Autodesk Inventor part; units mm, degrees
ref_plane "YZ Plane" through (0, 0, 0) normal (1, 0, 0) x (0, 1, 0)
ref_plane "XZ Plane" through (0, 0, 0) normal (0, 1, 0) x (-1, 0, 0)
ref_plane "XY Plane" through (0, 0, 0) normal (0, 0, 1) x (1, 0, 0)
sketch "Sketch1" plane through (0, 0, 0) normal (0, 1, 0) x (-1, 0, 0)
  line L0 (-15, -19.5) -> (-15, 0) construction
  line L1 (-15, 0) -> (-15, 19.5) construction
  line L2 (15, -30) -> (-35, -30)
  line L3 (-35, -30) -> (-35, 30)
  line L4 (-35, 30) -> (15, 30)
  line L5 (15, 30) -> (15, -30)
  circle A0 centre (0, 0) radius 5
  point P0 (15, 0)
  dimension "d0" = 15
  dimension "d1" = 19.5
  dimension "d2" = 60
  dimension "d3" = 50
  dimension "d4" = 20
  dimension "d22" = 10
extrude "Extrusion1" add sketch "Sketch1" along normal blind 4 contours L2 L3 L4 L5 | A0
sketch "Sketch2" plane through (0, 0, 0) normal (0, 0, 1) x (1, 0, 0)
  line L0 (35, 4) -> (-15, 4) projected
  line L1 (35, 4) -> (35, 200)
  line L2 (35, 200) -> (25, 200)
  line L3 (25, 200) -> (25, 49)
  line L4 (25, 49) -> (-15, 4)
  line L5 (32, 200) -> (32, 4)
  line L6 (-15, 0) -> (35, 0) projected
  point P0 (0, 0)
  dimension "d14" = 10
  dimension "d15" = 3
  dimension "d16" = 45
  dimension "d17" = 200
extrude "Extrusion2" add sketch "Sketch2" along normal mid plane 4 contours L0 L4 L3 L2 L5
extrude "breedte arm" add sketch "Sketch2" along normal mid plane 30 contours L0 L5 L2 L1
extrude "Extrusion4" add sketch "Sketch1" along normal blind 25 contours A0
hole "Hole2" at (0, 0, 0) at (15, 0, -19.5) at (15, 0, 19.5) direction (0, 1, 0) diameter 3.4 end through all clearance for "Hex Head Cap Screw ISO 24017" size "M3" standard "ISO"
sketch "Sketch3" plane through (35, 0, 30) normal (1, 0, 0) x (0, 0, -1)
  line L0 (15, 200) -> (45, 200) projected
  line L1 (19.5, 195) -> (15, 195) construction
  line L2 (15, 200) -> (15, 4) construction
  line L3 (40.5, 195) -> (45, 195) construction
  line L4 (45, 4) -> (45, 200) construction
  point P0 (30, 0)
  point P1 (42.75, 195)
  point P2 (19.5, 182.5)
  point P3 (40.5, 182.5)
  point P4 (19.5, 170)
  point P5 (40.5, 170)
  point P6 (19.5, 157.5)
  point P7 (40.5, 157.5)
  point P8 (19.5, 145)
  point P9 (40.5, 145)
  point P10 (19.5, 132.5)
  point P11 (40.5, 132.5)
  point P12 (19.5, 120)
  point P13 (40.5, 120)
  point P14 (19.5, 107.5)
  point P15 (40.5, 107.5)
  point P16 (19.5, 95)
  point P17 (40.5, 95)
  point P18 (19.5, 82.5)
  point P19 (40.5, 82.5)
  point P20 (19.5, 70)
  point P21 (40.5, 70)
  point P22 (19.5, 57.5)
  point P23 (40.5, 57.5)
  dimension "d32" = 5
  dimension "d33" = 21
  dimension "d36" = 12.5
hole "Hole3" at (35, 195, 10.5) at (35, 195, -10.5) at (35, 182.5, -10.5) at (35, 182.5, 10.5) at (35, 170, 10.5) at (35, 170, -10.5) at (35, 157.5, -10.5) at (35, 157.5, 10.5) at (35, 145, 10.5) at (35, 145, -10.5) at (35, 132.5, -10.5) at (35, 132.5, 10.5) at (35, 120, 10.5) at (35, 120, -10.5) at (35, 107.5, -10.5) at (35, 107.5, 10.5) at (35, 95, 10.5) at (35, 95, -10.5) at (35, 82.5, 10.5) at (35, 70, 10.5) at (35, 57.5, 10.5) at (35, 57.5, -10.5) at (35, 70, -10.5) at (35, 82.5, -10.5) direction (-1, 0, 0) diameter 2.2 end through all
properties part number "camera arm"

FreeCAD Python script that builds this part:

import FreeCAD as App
import Part
import Sketcher
from FreeCAD import Vector
Q = App.Units.Quantity


def add_polygon(sketch, points):
    """Adds a closed chain of lines whose ends are joined by coincident constraints."""
    first, n = sketch.GeometryCount, len(points)
    for a, b in zip(points, points[1:] + points[:1]):
        sketch.addGeometry(Part.LineSegment(App.Vector(*a, 0), App.Vector(*b, 0)), False)
    for i in range(n):
        sketch.addConstraint(Sketcher.Constraint("Coincident", first + i, 2, first + (i + 1) % n, 1))

doc = App.newDocument("Part")
body = doc.addObject("PartDesign::Body", "Body")

# Sketch on XZ plane
sketch1 = doc.addObject("Sketcher::SketchObject", "Sketch")
body.addObject(sketch1)
sketch1.AttachmentSupport = (doc.XZ_Plane, [""])
sketch1.MapMode = "FlatFace"
add_polygon(sketch1, [(35, -30), (-15, -30), (-15, 30), (35, 30)])  # lines 0-3
sketch1.addConstraint([
    Sketcher.Constraint("Horizontal", 0),
    Sketcher.Constraint("Vertical", 1),
    Sketcher.Constraint("Horizontal", 2),
    Sketcher.Constraint("Vertical", 3),
    Sketcher.Constraint("DistanceX", 0, 2, 0, 1, Q("50 mm")),
    Sketcher.Constraint("DistanceY", 1, 1, 1, 2, Q("60 mm")),
    Sketcher.Constraint("DistanceX", 0, 2, -1, 1, Q("15 mm")),
    Sketcher.Constraint("DistanceY", 0, 2, -1, 1, Q("30 mm")),
])
pad1 = doc.addObject("PartDesign::Pad", "Pad")
body.addObject(pad1)
pad1.Profile = sketch1
pad1.Length = 4
pad1.Reversed = True

# Sketch on XY plane
sketch2 = doc.addObject("Sketcher::SketchObject", "Sketch001")
body.addObject(sketch2)
sketch2.AttachmentSupport = (doc.XY_Plane, [""])
sketch2.MapMode = "FlatFace"
add_polygon(sketch2, [(-15, 4), (32, 4), (32, 200), (25, 200), (25, 49)])  # lines 0-4
sketch2.addConstraint([
    Sketcher.Constraint("Horizontal", 0),
    Sketcher.Constraint("Vertical", 1),
    Sketcher.Constraint("Horizontal", 2),
    Sketcher.Constraint("Vertical", 3),
    Sketcher.Constraint("DistanceY", -1, 1, 1, 2, Q("200 mm")),
    Sketcher.Constraint("DistanceY", 0, 2, 3, 2, Q("45 mm")),
    Sketcher.Constraint("DistanceX", 0, 1, 0, 2, Q("47 mm")),
    Sketcher.Constraint("DistanceX", 2, 2, 2, 1, Q("7 mm")),
    Sketcher.Constraint("DistanceY", 1, 1, 1, 2, Q("196 mm")),
    Sketcher.Constraint("DistanceX", -1, 1, 0, 2, Q("32 mm")),
])
pad2 = doc.addObject("PartDesign::Pad", "Pad001")
body.addObject(pad2)
pad2.Profile = sketch2
pad2.Length = 4
pad2.Midplane = True

# Sketch on XY plane
sketch3 = doc.addObject("Sketcher::SketchObject", "Sketch002")
body.addObject(sketch3)
sketch3.AttachmentSupport = (doc.XY_Plane, [""])
sketch3.MapMode = "FlatFace"
add_polygon(sketch3, [(32, 4), (35, 4), (35, 200), (32, 200)])  # lines 0-3
sketch3.addConstraint([
    Sketcher.Constraint("Horizontal", 0),
    Sketcher.Constraint("Vertical", 1),
    Sketcher.Constraint("Horizontal", 2),
    Sketcher.Constraint("Vertical", 3),
    Sketcher.Constraint("DistanceX", 0, 1, 0, 2, Q("3 mm")),
    Sketcher.Constraint("DistanceY", -1, 1, 1, 2, Q("200 mm")),
    Sketcher.Constraint("DistanceY", 1, 1, 1, 2, Q("196 mm")),
    Sketcher.Constraint("DistanceX", -1, 1, 0, 2, Q("35 mm")),
])
pad3 = doc.addObject("PartDesign::Pad", "Pad002")
body.addObject(pad3)
pad3.Profile = sketch3
pad3.Length = 30
pad3.Midplane = True

# Sketch on XZ plane
sketch4 = doc.addObject("Sketcher::SketchObject", "Sketch003")
body.addObject(sketch4)
sketch4.AttachmentSupport = (doc.XZ_Plane, [""])
sketch4.MapMode = "FlatFace"
sketch4.addGeometry(Part.Circle(Vector(0, 0, 0), Vector(0, 0, 1), 5), False)
sketch4.addConstraint([
    Sketcher.Constraint("Coincident", 0, 3, -1, 1),
    Sketcher.Constraint("Diameter", 0, Q("10 mm")),
])
pad4 = doc.addObject("PartDesign::Pad", "Pad003")
body.addObject(pad4)
pad4.Profile = sketch4
pad4.Length = 25
pad4.Reversed = True

# Sketch on XZ plane
sketch5 = doc.addObject("Sketcher::SketchObject", "Sketch004")
body.addObject(sketch5)
sketch5.AttachmentSupport = (doc.XZ_Plane, [""])
sketch5.MapMode = "FlatFace"
sketch5.addGeometry([
    Part.Circle(Vector(0, 0, 0), Vector(0, 0, 1), 1.7),
    Part.Circle(Vector(15, -19.5, 0), Vector(0, 0, 1), 1.7),
    Part.Circle(Vector(15, 19.5, 0), Vector(0, 0, 1), 1.7),
], False)
sketch5.addConstraint([
    Sketcher.Constraint("Coincident", 0, 3, -1, 1),
    Sketcher.Constraint("Equal", 0, 1),
    Sketcher.Constraint("Equal", 1, 2),
    Sketcher.Constraint("Symmetric", 1, 3, 2, 3, -1),
    Sketcher.Constraint("Diameter", 0, Q("3.4 mm")),
    Sketcher.Constraint("DistanceX", -1, 1, 1, 3, Q("15 mm")),
    Sketcher.Constraint("DistanceY", 1, 3, 2, 3, Q("39 mm")),
])
doc.recompute()
hole = doc.addObject("PartDesign::Hole", "Hole")
body.addObject(hole)
hole.Profile = sketch5
hole.ThreadType = "None"
hole.Diameter = 3.4
hole.DepthType = "ThroughAll"

# Sketch on YZ plane
sketch6 = doc.addObject("Sketcher::SketchObject", "Sketch005")
body.addObject(sketch6)
sketch6.AttachmentSupport = (doc.YZ_Plane, [""])
sketch6.MapMode = "FlatFace"
sketch6.AttachmentOffset = App.Placement(Vector(0, 0, 35), App.Rotation())
sketch6.addGeometry([
    Part.Circle(Vector(195, 10.5, 0), Vector(0, 0, 1), 1.1),  # 0
    Part.Circle(Vector(195, -10.5, 0), Vector(0, 0, 1), 1.1),  # 1
    Part.Circle(Vector(182.5, -10.5, 0), Vector(0, 0, 1), 1.1),  # 2
    Part.Circle(Vector(182.5, 10.5, 0), Vector(0, 0, 1), 1.1),  # 3
    Part.Circle(Vector(170, 10.5, 0), Vector(0, 0, 1), 1.1),  # 4
    Part.Circle(Vector(170, -10.5, 0), Vector(0, 0, 1), 1.1),  # 5
    Part.Circle(Vector(157.5, -10.5, 0), Vector(0, 0, 1), 1.1),  # 6
    Part.Circle(Vector(157.5, 10.5, 0), Vector(0, 0, 1), 1.1),  # 7
    Part.Circle(Vector(145, 10.5, 0), Vector(0, 0, 1), 1.1),  # 8
    Part.Circle(Vector(145, -10.5, 0), Vector(0, 0, 1), 1.1),  # 9
    Part.Circle(Vector(132.5, -10.5, 0), Vector(0, 0, 1), 1.1),  # 10
    Part.Circle(Vector(132.5, 10.5, 0), Vector(0, 0, 1), 1.1),  # 11
    Part.Circle(Vector(120, 10.5, 0), Vector(0, 0, 1), 1.1),  # 12
    Part.Circle(Vector(120, -10.5, 0), Vector(0, 0, 1), 1.1),  # 13
    Part.Circle(Vector(107.5, -10.5, 0), Vector(0, 0, 1), 1.1),  # 14
    Part.Circle(Vector(107.5, 10.5, 0), Vector(0, 0, 1), 1.1),  # 15
    Part.Circle(Vector(95, 10.5, 0), Vector(0, 0, 1), 1.1),  # 16
    Part.Circle(Vector(95, -10.5, 0), Vector(0, 0, 1), 1.1),  # 17
    Part.Circle(Vector(82.5, 10.5, 0), Vector(0, 0, 1), 1.1),  # 18
    Part.Circle(Vector(70, 10.5, 0), Vector(0, 0, 1), 1.1),  # 19
    Part.Circle(Vector(57.5, 10.5, 0), Vector(0, 0, 1), 1.1),  # 20
    Part.Circle(Vector(57.5, -10.5, 0), Vector(0, 0, 1), 1.1),  # 21
    Part.Circle(Vector(70, -10.5, 0), Vector(0, 0, 1), 1.1),  # 22
    Part.Circle(Vector(82.5, -10.5, 0), Vector(0, 0, 1), 1.1),  # 23
], False)
sketch6.addConstraint([
    Sketcher.Constraint("Equal", 0, 1),
    Sketcher.Constraint("Equal", 1, 2),
    Sketcher.Constraint("Equal", 2, 3),
    Sketcher.Constraint("Equal", 3, 4),
    Sketcher.Constraint("Equal", 4, 5),
    Sketcher.Constraint("Equal", 5, 6),
    Sketcher.Constraint("Equal", 6, 7),
    Sketcher.Constraint("Equal", 7, 8),
    Sketcher.Constraint("Equal", 8, 9),
    Sketcher.Constraint("Equal", 9, 10),
    Sketcher.Constraint("Equal", 10, 11),
    Sketcher.Constraint("Equal", 11, 12),
    Sketcher.Constraint("Equal", 12, 13),
    Sketcher.Constraint("Equal", 13, 14),
    Sketcher.Constraint("Equal", 14, 15),
    Sketcher.Constraint("Equal", 15, 16),
    Sketcher.Constraint("Equal", 16, 17),
    Sketcher.Constraint("Equal", 17, 18),
    Sketcher.Constraint("Equal", 18, 19),
    Sketcher.Constraint("Equal", 19, 20),
    Sketcher.Constraint("Equal", 20, 21),
    Sketcher.Constraint("Equal", 21, 22),
    Sketcher.Constraint("Equal", 22, 23),
    Sketcher.Constraint("Symmetric", 0, 3, 1, 3, -1),
    Sketcher.Constraint("Symmetric", 2, 3, 3, 3, -1),
    Sketcher.Constraint("Symmetric", 4, 3, 5, 3, -1),
    Sketcher.Constraint("Symmetric", 6, 3, 7, 3, -1),
    Sketcher.Constraint("Symmetric", 8, 3, 9, 3, -1),
    Sketcher.Constraint("Symmetric", 10, 3, 11, 3, -1),
    Sketcher.Constraint("Symmetric", 12, 3, 13, 3, -1),
    Sketcher.Constraint("Symmetric", 14, 3, 15, 3, -1),
    Sketcher.Constraint("Symmetric", 16, 3, 17, 3, -1),
    Sketcher.Constraint("Symmetric", 20, 3, 21, 3, -1),
    Sketcher.Constraint("Symmetric", 19, 3, 22, 3, -1),
    Sketcher.Constraint("Symmetric", 18, 3, 23, 3, -1),
    Sketcher.Constraint("Horizontal", 1, 3, 2, 3),
    Sketcher.Constraint("Horizontal", 3, 3, 4, 3),
    Sketcher.Constraint("Horizontal", 5, 3, 6, 3),
    Sketcher.Constraint("Horizontal", 7, 3, 8, 3),
    Sketcher.Constraint("Horizontal", 9, 3, 10, 3),
    Sketcher.Constraint("Horizontal", 11, 3, 12, 3),
    Sketcher.Constraint("Horizontal", 13, 3, 14, 3),
    Sketcher.Constraint("Horizontal", 15, 3, 16, 3),
    Sketcher.Constraint("Horizontal", 16, 3, 18, 3),
    Sketcher.Constraint("Horizontal", 18, 3, 19, 3),
    Sketcher.Constraint("Horizontal", 19, 3, 20, 3),
    Sketcher.Constraint("Diameter", 0, Q("2.2 mm")),
    Sketcher.Constraint("DistanceX", -1, 1, 0, 3, Q("195 mm")),
    Sketcher.Constraint("DistanceX", -1, 1, 4, 3, Q("170 mm")),
    Sketcher.Constraint("DistanceX", -1, 1, 8, 3, Q("145 mm")),
    Sketcher.Constraint("DistanceX", -1, 1, 12, 3, Q("120 mm")),
    Sketcher.Constraint("DistanceX", -1, 1, 16, 3, Q("95 mm")),
    Sketcher.Constraint("DistanceX", -1, 1, 19, 3, Q("70 mm")),
    Sketcher.Constraint("DistanceY", 1, 3, 0, 3, Q("21 mm")),
    Sketcher.Constraint("DistanceX", 6, 3, 2, 3, Q("25 mm")),
    Sketcher.Constraint("DistanceX", 10, 3, 6, 3, Q("25 mm")),
    Sketcher.Constraint("DistanceX", 14, 3, 10, 3, Q("25 mm")),
    Sketcher.Constraint("DistanceX", 18, 3, 15, 3, Q("25 mm")),
    Sketcher.Constraint("DistanceX", 20, 3, 18, 3, Q("25 mm")),
    Sketcher.Constraint("DistanceX", -1, 1, 2, 3, Q("182.5 mm")),
])
doc.recompute()
hole2 = doc.addObject("PartDesign::Hole", "Hole001")
body.addObject(hole2)
hole2.Profile = sketch6
hole2.ThreadType = "None"
hole2.Diameter = 2.2
hole2.DepthType = "ThroughAll"

doc.recompute()
